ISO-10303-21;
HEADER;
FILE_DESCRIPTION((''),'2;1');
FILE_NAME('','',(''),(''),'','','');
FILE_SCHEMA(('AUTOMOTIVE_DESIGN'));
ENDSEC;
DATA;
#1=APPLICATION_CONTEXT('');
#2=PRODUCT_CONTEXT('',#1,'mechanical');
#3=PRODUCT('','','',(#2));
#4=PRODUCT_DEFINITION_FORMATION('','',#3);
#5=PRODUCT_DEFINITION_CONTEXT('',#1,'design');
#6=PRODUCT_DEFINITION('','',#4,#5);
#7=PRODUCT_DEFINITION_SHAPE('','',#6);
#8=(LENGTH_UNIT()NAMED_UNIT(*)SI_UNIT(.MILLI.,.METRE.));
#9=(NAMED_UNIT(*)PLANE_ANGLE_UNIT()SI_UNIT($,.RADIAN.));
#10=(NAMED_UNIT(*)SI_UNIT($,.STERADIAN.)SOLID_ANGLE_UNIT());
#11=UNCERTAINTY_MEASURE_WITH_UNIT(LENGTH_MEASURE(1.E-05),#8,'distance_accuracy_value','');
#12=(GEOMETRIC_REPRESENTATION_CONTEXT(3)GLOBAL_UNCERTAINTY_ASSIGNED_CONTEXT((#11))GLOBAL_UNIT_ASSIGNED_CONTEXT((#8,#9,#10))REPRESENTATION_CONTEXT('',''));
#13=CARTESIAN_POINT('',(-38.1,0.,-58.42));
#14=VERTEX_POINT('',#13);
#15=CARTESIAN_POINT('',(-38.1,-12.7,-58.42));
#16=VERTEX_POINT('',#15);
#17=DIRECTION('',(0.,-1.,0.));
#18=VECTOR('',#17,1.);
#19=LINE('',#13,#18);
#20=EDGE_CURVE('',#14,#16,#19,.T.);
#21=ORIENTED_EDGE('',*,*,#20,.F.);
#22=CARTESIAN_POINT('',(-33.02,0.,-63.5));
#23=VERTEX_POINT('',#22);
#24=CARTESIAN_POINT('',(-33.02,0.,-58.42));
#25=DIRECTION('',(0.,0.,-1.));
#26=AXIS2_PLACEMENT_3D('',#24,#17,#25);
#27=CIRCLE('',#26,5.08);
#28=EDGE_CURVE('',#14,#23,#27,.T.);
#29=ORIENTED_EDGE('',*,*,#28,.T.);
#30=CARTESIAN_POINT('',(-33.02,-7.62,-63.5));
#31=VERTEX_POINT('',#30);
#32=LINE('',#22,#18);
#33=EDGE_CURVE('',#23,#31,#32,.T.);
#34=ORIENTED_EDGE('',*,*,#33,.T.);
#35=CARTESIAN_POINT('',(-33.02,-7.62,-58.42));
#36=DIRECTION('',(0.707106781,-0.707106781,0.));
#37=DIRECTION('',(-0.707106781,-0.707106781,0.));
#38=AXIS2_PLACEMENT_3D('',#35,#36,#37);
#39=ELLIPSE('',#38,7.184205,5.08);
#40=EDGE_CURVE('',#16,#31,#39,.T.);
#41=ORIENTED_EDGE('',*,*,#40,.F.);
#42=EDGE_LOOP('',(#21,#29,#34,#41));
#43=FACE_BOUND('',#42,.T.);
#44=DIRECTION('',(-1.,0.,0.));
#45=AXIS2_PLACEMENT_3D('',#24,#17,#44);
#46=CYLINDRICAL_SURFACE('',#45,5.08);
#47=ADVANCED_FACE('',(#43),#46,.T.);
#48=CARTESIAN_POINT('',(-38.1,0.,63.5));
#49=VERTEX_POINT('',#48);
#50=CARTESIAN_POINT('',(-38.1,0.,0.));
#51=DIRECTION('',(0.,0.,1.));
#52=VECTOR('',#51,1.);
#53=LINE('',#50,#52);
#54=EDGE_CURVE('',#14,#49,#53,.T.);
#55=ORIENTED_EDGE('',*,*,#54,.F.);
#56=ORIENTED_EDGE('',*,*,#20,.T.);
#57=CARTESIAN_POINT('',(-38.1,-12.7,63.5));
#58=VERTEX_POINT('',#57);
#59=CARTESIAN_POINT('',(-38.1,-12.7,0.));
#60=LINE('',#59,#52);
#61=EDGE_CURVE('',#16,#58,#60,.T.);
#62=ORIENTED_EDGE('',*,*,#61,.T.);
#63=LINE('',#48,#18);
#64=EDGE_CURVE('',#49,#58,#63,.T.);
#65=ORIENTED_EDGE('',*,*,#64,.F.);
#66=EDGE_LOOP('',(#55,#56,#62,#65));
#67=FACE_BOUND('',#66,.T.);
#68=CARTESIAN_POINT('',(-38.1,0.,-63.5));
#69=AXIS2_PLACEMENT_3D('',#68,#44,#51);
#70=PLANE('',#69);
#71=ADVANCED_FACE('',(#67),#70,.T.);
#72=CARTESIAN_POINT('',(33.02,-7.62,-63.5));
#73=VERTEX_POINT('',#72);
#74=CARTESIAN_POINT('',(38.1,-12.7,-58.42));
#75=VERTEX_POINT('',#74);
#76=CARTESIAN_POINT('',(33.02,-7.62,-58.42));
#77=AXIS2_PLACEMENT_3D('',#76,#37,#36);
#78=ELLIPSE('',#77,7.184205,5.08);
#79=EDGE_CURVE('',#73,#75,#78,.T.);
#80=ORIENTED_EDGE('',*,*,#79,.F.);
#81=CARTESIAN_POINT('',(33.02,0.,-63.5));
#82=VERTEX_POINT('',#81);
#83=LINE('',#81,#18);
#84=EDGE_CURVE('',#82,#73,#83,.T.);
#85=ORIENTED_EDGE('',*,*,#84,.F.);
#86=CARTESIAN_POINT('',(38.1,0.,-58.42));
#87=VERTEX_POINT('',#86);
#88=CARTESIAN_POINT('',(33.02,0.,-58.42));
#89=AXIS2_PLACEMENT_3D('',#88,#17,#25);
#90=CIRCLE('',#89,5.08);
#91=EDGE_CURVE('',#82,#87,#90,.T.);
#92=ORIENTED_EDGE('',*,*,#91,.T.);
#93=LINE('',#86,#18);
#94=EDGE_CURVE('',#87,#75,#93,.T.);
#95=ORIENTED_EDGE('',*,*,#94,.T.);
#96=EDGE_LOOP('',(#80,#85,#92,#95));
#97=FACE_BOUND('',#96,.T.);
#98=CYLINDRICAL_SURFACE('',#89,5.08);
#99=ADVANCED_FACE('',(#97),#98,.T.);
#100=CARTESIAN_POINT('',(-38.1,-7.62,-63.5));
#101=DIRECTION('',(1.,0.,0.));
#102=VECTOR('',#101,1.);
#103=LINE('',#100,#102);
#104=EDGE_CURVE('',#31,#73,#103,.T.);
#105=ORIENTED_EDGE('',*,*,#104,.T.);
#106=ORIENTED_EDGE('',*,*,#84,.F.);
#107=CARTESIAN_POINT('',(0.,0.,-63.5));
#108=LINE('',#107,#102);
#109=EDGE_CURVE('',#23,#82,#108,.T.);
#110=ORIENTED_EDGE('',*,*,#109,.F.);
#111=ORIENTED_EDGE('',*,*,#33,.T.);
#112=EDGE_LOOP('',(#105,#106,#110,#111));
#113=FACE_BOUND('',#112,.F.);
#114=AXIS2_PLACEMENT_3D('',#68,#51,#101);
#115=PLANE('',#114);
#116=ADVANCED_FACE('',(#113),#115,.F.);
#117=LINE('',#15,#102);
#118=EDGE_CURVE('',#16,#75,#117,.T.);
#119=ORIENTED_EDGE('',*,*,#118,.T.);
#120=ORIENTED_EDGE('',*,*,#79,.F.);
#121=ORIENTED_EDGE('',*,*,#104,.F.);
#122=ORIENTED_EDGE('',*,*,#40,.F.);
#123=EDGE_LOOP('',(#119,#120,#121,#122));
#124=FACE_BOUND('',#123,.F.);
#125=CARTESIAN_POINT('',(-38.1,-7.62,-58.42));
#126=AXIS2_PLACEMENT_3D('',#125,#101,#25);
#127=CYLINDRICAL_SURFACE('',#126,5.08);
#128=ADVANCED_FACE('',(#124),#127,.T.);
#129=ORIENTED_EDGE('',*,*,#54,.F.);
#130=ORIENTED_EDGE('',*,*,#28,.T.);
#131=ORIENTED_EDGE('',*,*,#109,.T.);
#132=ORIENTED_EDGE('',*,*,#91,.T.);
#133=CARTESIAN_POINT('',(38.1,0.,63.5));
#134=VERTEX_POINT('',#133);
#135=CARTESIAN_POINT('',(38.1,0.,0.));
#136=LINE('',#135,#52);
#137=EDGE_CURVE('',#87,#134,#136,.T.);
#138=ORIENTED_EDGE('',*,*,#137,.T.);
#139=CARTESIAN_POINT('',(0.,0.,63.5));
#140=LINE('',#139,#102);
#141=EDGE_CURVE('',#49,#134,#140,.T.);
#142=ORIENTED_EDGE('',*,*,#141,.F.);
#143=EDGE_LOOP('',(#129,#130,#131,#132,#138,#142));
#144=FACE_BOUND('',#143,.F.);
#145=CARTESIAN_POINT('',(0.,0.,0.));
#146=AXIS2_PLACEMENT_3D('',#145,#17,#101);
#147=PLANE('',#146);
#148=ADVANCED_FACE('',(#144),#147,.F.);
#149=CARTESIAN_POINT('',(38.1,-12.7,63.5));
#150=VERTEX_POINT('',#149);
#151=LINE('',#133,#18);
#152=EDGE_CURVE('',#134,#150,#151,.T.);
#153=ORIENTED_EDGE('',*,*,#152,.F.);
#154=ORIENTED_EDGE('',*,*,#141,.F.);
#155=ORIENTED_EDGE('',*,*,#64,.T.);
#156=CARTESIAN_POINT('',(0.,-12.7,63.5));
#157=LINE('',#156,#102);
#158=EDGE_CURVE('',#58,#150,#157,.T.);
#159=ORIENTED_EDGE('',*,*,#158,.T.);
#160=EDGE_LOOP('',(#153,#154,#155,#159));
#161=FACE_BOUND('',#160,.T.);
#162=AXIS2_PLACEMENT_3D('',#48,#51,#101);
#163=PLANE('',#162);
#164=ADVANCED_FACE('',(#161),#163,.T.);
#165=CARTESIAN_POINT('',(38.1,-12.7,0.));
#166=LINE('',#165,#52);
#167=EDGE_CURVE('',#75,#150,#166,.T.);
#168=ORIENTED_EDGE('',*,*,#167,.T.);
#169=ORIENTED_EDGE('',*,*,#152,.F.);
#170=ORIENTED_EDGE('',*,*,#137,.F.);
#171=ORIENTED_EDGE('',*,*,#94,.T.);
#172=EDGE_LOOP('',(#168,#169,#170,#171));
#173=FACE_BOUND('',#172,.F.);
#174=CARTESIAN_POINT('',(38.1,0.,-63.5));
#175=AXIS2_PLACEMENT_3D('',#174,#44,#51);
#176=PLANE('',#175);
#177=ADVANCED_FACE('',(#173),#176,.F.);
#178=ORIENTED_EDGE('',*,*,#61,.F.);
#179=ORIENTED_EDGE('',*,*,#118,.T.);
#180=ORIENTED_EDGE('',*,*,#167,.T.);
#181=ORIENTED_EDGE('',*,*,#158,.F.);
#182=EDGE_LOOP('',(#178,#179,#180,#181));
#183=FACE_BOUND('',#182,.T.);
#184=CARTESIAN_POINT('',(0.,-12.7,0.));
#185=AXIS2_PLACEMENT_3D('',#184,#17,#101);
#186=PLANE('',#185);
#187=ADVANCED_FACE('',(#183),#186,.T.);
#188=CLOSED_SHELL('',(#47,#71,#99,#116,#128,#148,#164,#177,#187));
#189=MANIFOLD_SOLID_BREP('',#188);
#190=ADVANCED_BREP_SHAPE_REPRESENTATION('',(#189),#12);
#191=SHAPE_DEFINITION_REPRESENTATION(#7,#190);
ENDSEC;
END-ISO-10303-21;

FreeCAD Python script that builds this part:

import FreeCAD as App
import Part
import Sketcher
from FreeCAD import Vector
Q = App.Units.Quantity


def edges_at(feature, points):
    """Names of the edges that pass closest to the given points."""
    edges = feature.Shape.Edges
    near = lambda p: min(range(len(edges)), key=lambda i: edges[i].distToShape(Part.Vertex(*p))[0])
    return sorted({f"Edge{near(p) + 1}" for p in points})

doc = App.newDocument("Part")
body = doc.addObject("PartDesign::Body", "Body")

sketch1 = body.newObject("Sketcher::SketchObject", "Sketch")
sketch1.AttachmentSupport = (doc.getObject("XZ_Plane"), [""])
sketch1.MapMode = "FlatFace"
sketch1.addGeometry(Part.LineSegment(Vector(-38, 64, 0), Vector(-38, -64, 0)), False)
sketch1.addGeometry(Part.LineSegment(Vector(-38, -64, 0), Vector(38, -64, 0)), False)
sketch1.addGeometry(Part.LineSegment(Vector(38, -64, 0), Vector(38, 64, 0)), False)
sketch1.addGeometry(Part.LineSegment(Vector(38, 64, 0), Vector(-38, 64, 0)), False)
sketch1.addConstraint(Sketcher.Constraint("Coincident", 0, 2, 1, 1))
sketch1.addConstraint(Sketcher.Constraint("Coincident", 1, 2, 2, 1))
sketch1.addConstraint(Sketcher.Constraint("Coincident", 2, 2, 3, 1))
sketch1.addConstraint(Sketcher.Constraint("Coincident", 3, 2, 0, 1))
sketch1.addConstraint(Sketcher.Constraint("Vertical", 0))
sketch1.addConstraint(Sketcher.Constraint("Horizontal", 1))
sketch1.addConstraint(Sketcher.Constraint("Vertical", 2))
sketch1.addConstraint(Sketcher.Constraint("Horizontal", 3))
sketch1.addConstraint(Sketcher.Constraint("Symmetric", 0, 2, 2, 2, -1, 1))
sketch1.addConstraint(Sketcher.Constraint("DistanceX", 1, 1, 1, 2, Q("3 in")))
sketch1.addConstraint(Sketcher.Constraint("DistanceY", 0, 2, 0, 1, Q("5 in")))
pad1 = body.newObject("PartDesign::Pad", "Pad")
pad1.Profile = sketch1
pad1.Length = Q("0.5 in")
doc.recompute()

fillet = body.newObject("PartDesign::Fillet", "Fillet")
fillet.Base = (pad1, edges_at(pad1, [(38.1, -6.35, -63.5), (-38.1, -6.35, -63.5), (0, -12.7, -63.5)]))
fillet.Radius = Q("0.2 in")

doc.recompute()
